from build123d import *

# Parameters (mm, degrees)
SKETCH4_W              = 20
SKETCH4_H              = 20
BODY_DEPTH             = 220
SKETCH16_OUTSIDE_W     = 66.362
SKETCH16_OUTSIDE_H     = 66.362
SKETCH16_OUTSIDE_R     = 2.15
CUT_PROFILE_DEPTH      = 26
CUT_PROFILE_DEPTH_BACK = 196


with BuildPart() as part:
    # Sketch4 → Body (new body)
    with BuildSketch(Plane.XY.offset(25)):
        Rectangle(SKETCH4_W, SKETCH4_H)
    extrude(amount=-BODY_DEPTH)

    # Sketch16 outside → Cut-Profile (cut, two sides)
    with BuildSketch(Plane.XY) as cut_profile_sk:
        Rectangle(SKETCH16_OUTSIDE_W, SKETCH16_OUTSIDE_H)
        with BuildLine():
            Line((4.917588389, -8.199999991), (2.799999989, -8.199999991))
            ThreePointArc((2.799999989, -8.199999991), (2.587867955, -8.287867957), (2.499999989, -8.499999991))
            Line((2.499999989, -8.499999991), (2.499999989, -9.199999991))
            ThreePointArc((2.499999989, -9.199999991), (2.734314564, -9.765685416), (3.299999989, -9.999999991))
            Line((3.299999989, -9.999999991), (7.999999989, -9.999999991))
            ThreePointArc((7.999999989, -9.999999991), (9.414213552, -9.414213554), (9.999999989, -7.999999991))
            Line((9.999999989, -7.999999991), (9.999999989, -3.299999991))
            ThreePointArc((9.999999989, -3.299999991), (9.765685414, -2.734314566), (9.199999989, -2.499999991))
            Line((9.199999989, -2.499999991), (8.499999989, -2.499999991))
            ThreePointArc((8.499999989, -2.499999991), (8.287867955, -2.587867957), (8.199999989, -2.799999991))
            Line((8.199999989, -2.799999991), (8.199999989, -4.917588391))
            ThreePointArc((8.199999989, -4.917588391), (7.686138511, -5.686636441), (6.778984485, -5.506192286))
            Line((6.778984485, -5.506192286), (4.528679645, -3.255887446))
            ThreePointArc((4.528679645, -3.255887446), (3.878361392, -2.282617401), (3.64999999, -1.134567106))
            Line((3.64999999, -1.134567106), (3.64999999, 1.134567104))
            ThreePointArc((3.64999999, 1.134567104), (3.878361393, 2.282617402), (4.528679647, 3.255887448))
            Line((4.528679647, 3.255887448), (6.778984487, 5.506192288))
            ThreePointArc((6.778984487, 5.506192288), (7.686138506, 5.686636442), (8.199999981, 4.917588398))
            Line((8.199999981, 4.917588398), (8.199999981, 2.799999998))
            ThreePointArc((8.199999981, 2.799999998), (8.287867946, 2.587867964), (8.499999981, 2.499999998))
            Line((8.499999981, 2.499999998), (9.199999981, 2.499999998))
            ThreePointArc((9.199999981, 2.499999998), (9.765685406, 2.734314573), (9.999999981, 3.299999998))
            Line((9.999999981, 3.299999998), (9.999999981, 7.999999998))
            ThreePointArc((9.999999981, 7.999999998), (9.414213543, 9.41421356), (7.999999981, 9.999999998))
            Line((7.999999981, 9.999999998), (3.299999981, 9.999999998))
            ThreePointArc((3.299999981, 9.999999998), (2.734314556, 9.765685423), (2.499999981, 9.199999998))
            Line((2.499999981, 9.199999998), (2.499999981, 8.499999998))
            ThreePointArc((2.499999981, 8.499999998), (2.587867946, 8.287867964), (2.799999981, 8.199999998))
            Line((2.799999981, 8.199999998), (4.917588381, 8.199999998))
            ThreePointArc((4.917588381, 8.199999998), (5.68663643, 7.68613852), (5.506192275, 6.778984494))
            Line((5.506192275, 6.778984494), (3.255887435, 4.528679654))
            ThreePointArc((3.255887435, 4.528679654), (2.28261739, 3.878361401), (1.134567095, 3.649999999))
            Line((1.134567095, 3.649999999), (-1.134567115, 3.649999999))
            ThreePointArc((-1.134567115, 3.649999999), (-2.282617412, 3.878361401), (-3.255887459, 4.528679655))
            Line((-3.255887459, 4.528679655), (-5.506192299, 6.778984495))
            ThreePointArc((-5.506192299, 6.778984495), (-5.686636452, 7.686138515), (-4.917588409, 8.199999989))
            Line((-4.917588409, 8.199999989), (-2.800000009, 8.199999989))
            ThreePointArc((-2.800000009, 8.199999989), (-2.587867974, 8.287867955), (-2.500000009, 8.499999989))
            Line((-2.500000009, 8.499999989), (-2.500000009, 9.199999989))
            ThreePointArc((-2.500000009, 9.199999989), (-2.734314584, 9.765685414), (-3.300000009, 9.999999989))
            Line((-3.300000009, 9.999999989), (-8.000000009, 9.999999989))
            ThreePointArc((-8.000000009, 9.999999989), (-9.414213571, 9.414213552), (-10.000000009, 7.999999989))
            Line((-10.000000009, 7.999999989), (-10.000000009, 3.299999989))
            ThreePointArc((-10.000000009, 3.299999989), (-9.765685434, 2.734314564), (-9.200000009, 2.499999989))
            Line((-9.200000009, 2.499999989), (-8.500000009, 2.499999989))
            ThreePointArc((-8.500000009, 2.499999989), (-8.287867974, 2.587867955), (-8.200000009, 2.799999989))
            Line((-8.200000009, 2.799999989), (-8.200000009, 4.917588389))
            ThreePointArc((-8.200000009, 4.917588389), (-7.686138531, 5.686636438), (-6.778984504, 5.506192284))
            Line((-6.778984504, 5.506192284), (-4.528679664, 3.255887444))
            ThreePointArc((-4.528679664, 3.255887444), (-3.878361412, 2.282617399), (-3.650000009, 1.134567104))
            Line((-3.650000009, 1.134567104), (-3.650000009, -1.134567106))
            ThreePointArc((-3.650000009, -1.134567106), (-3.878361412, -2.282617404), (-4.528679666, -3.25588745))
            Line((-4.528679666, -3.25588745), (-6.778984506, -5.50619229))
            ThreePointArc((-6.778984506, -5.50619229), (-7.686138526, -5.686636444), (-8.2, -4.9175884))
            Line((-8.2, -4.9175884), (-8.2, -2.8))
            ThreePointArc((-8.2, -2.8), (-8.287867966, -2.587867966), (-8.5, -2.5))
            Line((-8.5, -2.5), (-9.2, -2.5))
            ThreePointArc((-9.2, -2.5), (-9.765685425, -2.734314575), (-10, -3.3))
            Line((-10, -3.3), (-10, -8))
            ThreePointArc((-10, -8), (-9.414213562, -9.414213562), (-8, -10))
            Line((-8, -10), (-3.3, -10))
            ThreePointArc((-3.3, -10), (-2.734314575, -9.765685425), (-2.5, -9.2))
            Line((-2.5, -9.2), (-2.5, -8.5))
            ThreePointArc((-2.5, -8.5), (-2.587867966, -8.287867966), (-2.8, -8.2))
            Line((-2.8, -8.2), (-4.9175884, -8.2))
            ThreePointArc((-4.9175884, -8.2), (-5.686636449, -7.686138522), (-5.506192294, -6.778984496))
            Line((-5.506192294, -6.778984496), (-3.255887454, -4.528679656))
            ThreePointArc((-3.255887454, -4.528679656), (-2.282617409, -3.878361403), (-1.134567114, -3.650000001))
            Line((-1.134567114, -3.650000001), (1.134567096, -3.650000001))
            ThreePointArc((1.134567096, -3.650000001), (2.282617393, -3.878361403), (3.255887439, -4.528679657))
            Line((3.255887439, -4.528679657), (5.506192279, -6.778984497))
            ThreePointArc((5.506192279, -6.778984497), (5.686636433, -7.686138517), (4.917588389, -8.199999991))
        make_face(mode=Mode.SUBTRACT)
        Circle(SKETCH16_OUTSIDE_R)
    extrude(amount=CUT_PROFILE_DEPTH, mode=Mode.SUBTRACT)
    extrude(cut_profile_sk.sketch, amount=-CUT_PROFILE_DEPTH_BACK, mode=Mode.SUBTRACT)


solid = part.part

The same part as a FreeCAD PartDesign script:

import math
import FreeCAD as App
import Part
import Sketcher
from FreeCAD import Vector


def add_polygon(sketch, points):
    """Adds a closed chain of lines whose ends are joined by coincident constraints."""
    first, n = sketch.GeometryCount, len(points)
    for a, b in zip(points, points[1:] + points[:1]):
        sketch.addGeometry(Part.LineSegment(App.Vector(*a, 0), App.Vector(*b, 0)), False)
    for i in range(n):
        sketch.addConstraint(Sketcher.Constraint("Coincident", first + i, 2, first + (i + 1) % n, 1))

doc = App.newDocument("Part")
body = doc.addObject("PartDesign::Body", "Body")

# Sketch on XY plane
sketch1 = doc.addObject("Sketcher::SketchObject", "Sketch")
body.addObject(sketch1)
sketch1.AttachmentSupport = (doc.XY_Plane, [""])
sketch1.MapMode = "FlatFace"
sketch1.AttachmentOffset = App.Placement(Vector(0, 0, 25), App.Rotation())
add_polygon(sketch1, [(-10, 10), (-10, -10), (10, -10), (10, 10)])  # lines 0-3
sketch1.addConstraint([
    Sketcher.Constraint("Vertical", 0),
    Sketcher.Constraint("Horizontal", 1),
    Sketcher.Constraint("Vertical", 2),
    Sketcher.Constraint("Horizontal", 3),
    Sketcher.Constraint("Symmetric", 0, 2, 2, 2, -1, 1),
    Sketcher.Constraint("Equal", 3, 0),
    Sketcher.Constraint("DistanceX", 1, 1, 1, 2, 20.0),
])
pad1 = doc.addObject("PartDesign::Pad", "Pad")
body.addObject(pad1)
pad1.Profile = sketch1
pad1.Length = 220
pad1.Reversed = True

# Sketch on XY plane
sketch2 = doc.addObject("Sketcher::SketchObject", "Sketch001")
body.addObject(sketch2)
sketch2.AttachmentSupport = (doc.XY_Plane, [""])
sketch2.MapMode = "FlatFace"
add_polygon(sketch2, [(-33.18, 33.18), (-33.18, -33.18), (33.18, -33.18), (33.18, 33.18)])  # lines 0-3
sketch2.addGeometry(Part.LineSegment(Vector(2.8, -8.2, 0), Vector(4.92, -8.2, 0)), False)  # 4
sketch2.addGeometry(Part.ArcOfCircle(Part.Circle(Vector(4.92, -7.37, 0), Vector(0, 0, 1), 0.83), math.radians(-90), math.radians(45)), False)  # 5
sketch2.addGeometry(Part.LineSegment(Vector(5.51, -6.78, 0), Vector(3.26, -4.53, 0)), False)  # 6
sketch2.addGeometry(Part.ArcOfCircle(Part.Circle(Vector(1.13, -6.65, 0), Vector(0, 0, 1), 3), math.radians(45), math.radians(90)), False)  # 7
sketch2.addGeometry(Part.LineSegment(Vector(1.13, -3.65, 0), Vector(-1.13, -3.65, 0)), False)  # 8
sketch2.addGeometry(Part.ArcOfCircle(Part.Circle(Vector(-1.13, -6.65, 0), Vector(0, 0, 1), 3), math.radians(90), math.radians(135)), False)  # 9
sketch2.addGeometry(Part.LineSegment(Vector(-3.26, -4.53, 0), Vector(-5.51, -6.78, 0)), False)  # 10
sketch2.addGeometry(Part.ArcOfCircle(Part.Circle(Vector(-4.92, -7.37, 0), Vector(0, 0, 1), 0.83), math.radians(135), math.radians(270)), False)  # 11
sketch2.addGeometry(Part.LineSegment(Vector(-4.92, -8.2, 0), Vector(-2.8, -8.2, 0)), False)  # 12
sketch2.addGeometry(Part.ArcOfCircle(Part.Circle(Vector(-2.8, -8.5, 0), Vector(0, 0, 1), 0.3), math.radians(0), math.radians(90)), False)  # 13
sketch2.addGeometry(Part.LineSegment(Vector(-2.5, -8.5, 0), Vector(-2.5, -9.2, 0)), False)  # 14
sketch2.addGeometry(Part.ArcOfCircle(Part.Circle(Vector(-3.3, -9.2, 0), Vector(0, 0, 1), 0.8), math.radians(-90), math.radians(0)), False)  # 15
sketch2.addGeometry(Part.LineSegment(Vector(-3.3, -10, 0), Vector(-8, -10, 0)), False)  # 16
sketch2.addGeometry(Part.ArcOfCircle(Part.Circle(Vector(-8, -8, 0), Vector(0, 0, 1), 2), math.radians(-180), math.radians(-90)), False)  # 17
sketch2.addGeometry(Part.LineSegment(Vector(-10, -8, 0), Vector(-10, -3.3, 0)), False)  # 18
sketch2.addGeometry(Part.ArcOfCircle(Part.Circle(Vector(-9.2, -3.3, 0), Vector(0, 0, 1), 0.8), math.radians(90), math.radians(180)), False)  # 19
sketch2.addGeometry(Part.LineSegment(Vector(-9.2, -2.5, 0), Vector(-8.5, -2.5, 0)), False)  # 20
sketch2.addGeometry(Part.ArcOfCircle(Part.Circle(Vector(-8.5, -2.8, 0), Vector(0, 0, 1), 0.3), math.radians(0), math.radians(90)), False)  # 21
sketch2.addGeometry(Part.LineSegment(Vector(-8.2, -2.8, 0), Vector(-8.2, -4.92, 0)), False)  # 22
sketch2.addGeometry(Part.ArcOfCircle(Part.Circle(Vector(-7.37, -4.92, 0), Vector(0, 0, 1), 0.83), math.radians(180), math.radians(315)), False)  # 23
sketch2.addGeometry(Part.LineSegment(Vector(-6.78, -5.51, 0), Vector(-4.53, -3.26, 0)), False)  # 24
sketch2.addGeometry(Part.ArcOfCircle(Part.Circle(Vector(-6.65, -1.13, 0), Vector(0, 0, 1), 3), math.radians(-45), math.radians(0)), False)  # 25
sketch2.addGeometry(Part.LineSegment(Vector(-3.65, -1.13, 0), Vector(-3.65, 1.13, 0)), False)  # 26
sketch2.addGeometry(Part.ArcOfCircle(Part.Circle(Vector(-6.65, 1.13, 0), Vector(0, 0, 1), 3), math.radians(0), math.radians(45)), False)  # 27
sketch2.addGeometry(Part.LineSegment(Vector(-4.53, 3.26, 0), Vector(-6.78, 5.51, 0)), False)  # 28
sketch2.addGeometry(Part.ArcOfCircle(Part.Circle(Vector(-7.37, 4.92, 0), Vector(0, 0, 1), 0.83), math.radians(45), math.radians(180)), False)  # 29
sketch2.addGeometry(Part.LineSegment(Vector(-8.2, 4.92, 0), Vector(-8.2, 2.8, 0)), False)  # 30
sketch2.addGeometry(Part.ArcOfCircle(Part.Circle(Vector(-8.5, 2.8, 0), Vector(0, 0, 1), 0.3), math.radians(-90), math.radians(0)), False)  # 31
sketch2.addGeometry(Part.LineSegment(Vector(-8.5, 2.5, 0), Vector(-9.2, 2.5, 0)), False)  # 32
sketch2.addGeometry(Part.ArcOfCircle(Part.Circle(Vector(-9.2, 3.3, 0), Vector(0, 0, 1), 0.8), math.radians(180), math.radians(270)), False)  # 33
sketch2.addGeometry(Part.LineSegment(Vector(-10, 3.3, 0), Vector(-10, 8, 0)), False)  # 34
sketch2.addGeometry(Part.ArcOfCircle(Part.Circle(Vector(-8, 8, 0), Vector(0, 0, 1), 2), math.radians(90), math.radians(180)), False)  # 35
sketch2.addGeometry(Part.LineSegment(Vector(-8, 10, 0), Vector(-3.3, 10, 0)), False)  # 36
sketch2.addGeometry(Part.ArcOfCircle(Part.Circle(Vector(-3.3, 9.2, 0), Vector(0, 0, 1), 0.8), math.radians(0), math.radians(90)), False)  # 37
sketch2.addGeometry(Part.LineSegment(Vector(-2.5, 9.2, 0), Vector(-2.5, 8.5, 0)), False)  # 38
sketch2.addGeometry(Part.ArcOfCircle(Part.Circle(Vector(-2.8, 8.5, 0), Vector(0, 0, 1), 0.3), math.radians(-90), math.radians(0)), False)  # 39
sketch2.addGeometry(Part.LineSegment(Vector(-2.8, 8.2, 0), Vector(-4.92, 8.2, 0)), False)  # 40
sketch2.addGeometry(Part.ArcOfCircle(Part.Circle(Vector(-4.92, 7.37, 0), Vector(0, 0, 1), 0.83), math.radians(90), math.radians(225)), False)  # 41
sketch2.addGeometry(Part.LineSegment(Vector(-5.51, 6.78, 0), Vector(-3.26, 4.53, 0)), False)  # 42
sketch2.addGeometry(Part.ArcOfCircle(Part.Circle(Vector(-1.13, 6.65, 0), Vector(0, 0, 1), 3), math.radians(-135), math.radians(-90)), False)  # 43
sketch2.addGeometry(Part.LineSegment(Vector(-1.13, 3.65, 0), Vector(1.13, 3.65, 0)), False)  # 44
sketch2.addGeometry(Part.ArcOfCircle(Part.Circle(Vector(1.13, 6.65, 0), Vector(0, 0, 1), 3), math.radians(-90), math.radians(-45)), False)  # 45
sketch2.addGeometry(Part.LineSegment(Vector(3.26, 4.53, 0), Vector(5.51, 6.78, 0)), False)  # 46
sketch2.addGeometry(Part.ArcOfCircle(Part.Circle(Vector(4.92, 7.37, 0), Vector(0, 0, 1), 0.83), math.radians(-45), math.radians(90)), False)  # 47
sketch2.addGeometry(Part.LineSegment(Vector(4.92, 8.2, 0), Vector(2.8, 8.2, 0)), False)  # 48
sketch2.addGeometry(Part.ArcOfCircle(Part.Circle(Vector(2.8, 8.5, 0), Vector(0, 0, 1), 0.3), math.radians(180), math.radians(270)), False)  # 49
sketch2.addGeometry(Part.LineSegment(Vector(2.5, 8.5, 0), Vector(2.5, 9.2, 0)), False)  # 50
sketch2.addGeometry(Part.ArcOfCircle(Part.Circle(Vector(3.3, 9.2, 0), Vector(0, 0, 1), 0.8), math.radians(90), math.radians(180)), False)  # 51
sketch2.addGeometry(Part.LineSegment(Vector(3.3, 10, 0), Vector(8, 10, 0)), False)  # 52
sketch2.addGeometry(Part.ArcOfCircle(Part.Circle(Vector(8, 8, 0), Vector(0, 0, 1), 2), math.radians(0), math.radians(90)), False)  # 53
sketch2.addGeometry(Part.LineSegment(Vector(10, 8, 0), Vector(10, 3.3, 0)), False)  # 54
sketch2.addGeometry(Part.ArcOfCircle(Part.Circle(Vector(9.2, 3.3, 0), Vector(0, 0, 1), 0.8), math.radians(-90), math.radians(0)), False)  # 55
sketch2.addGeometry(Part.LineSegment(Vector(9.2, 2.5, 0), Vector(8.5, 2.5, 0)), False)  # 56
sketch2.addGeometry(Part.ArcOfCircle(Part.Circle(Vector(8.5, 2.8, 0), Vector(0, 0, 1), 0.3), math.radians(180), math.radians(270)), False)  # 57
sketch2.addGeometry(Part.LineSegment(Vector(8.2, 2.8, 0), Vector(8.2, 4.92, 0)), False)  # 58
sketch2.addGeometry(Part.ArcOfCircle(Part.Circle(Vector(7.37, 4.92, 0), Vector(0, 0, 1), 0.83), math.radians(0), math.radians(135)), False)  # 59
sketch2.addGeometry(Part.LineSegment(Vector(6.78, 5.51, 0), Vector(4.53, 3.26, 0)), False)  # 60
sketch2.addGeometry(Part.ArcOfCircle(Part.Circle(Vector(6.65, 1.13, 0), Vector(0, 0, 1), 3), math.radians(135), math.radians(180)), False)  # 61
sketch2.addGeometry(Part.LineSegment(Vector(3.65, 1.13, 0), Vector(3.65, -1.13, 0)), False)  # 62
sketch2.addGeometry(Part.ArcOfCircle(Part.Circle(Vector(6.65, -1.13, 0), Vector(0, 0, 1), 3), math.radians(180), math.radians(225)), False)  # 63
sketch2.addGeometry(Part.LineSegment(Vector(4.53, -3.26, 0), Vector(6.78, -5.51, 0)), False)  # 64
sketch2.addGeometry(Part.ArcOfCircle(Part.Circle(Vector(7.37, -4.92, 0), Vector(0, 0, 1), 0.83), math.radians(-135), math.radians(0)), False)  # 65
sketch2.addGeometry(Part.LineSegment(Vector(8.2, -4.92, 0), Vector(8.2, -2.8, 0)), False)  # 66
sketch2.addGeometry(Part.ArcOfCircle(Part.Circle(Vector(8.5, -2.8, 0), Vector(0, 0, 1), 0.3), math.radians(90), math.radians(180)), False)  # 67
sketch2.addGeometry(Part.LineSegment(Vector(8.5, -2.5, 0), Vector(9.2, -2.5, 0)), False)  # 68
sketch2.addGeometry(Part.ArcOfCircle(Part.Circle(Vector(9.2, -3.3, 0), Vector(0, 0, 1), 0.8), math.radians(0), math.radians(90)), False)  # 69
sketch2.addGeometry(Part.LineSegment(Vector(10, -3.3, 0), Vector(10, -8, 0)), False)  # 70
sketch2.addGeometry(Part.ArcOfCircle(Part.Circle(Vector(8, -8, 0), Vector(0, 0, 1), 2), math.radians(-90), math.radians(0)), False)  # 71
sketch2.addGeometry(Part.LineSegment(Vector(8, -10, 0), Vector(3.3, -10, 0)), False)  # 72
sketch2.addGeometry(Part.ArcOfCircle(Part.Circle(Vector(3.3, -9.2, 0), Vector(0, 0, 1), 0.8), math.radians(180), math.radians(270)), False)  # 73
sketch2.addGeometry(Part.LineSegment(Vector(2.5, -9.2, 0), Vector(2.5, -8.5, 0)), False)  # 74
sketch2.addGeometry(Part.ArcOfCircle(Part.Circle(Vector(2.8, -8.5, 0), Vector(0, 0, 1), 0.3), math.radians(90), math.radians(180)), False)  # 75
sketch2.addGeometry(Part.Circle(Vector(0, 0, 0), Vector(0, 0, 1), 2.15), False)  # 76
sketch2.addConstraint([
    Sketcher.Constraint("Tangent", 4, 2, 5, 1),
    Sketcher.Constraint("Tangent", 5, 2, 6, 1),
    Sketcher.Constraint("Tangent", 6, 2, 7, 1),
    Sketcher.Constraint("Tangent", 7, 2, 8, 1),
    Sketcher.Constraint("Tangent", 8, 2, 9, 1),
    Sketcher.Constraint("Tangent", 9, 2, 10, 1),
    Sketcher.Constraint("Tangent", 10, 2, 11, 1),
    Sketcher.Constraint("Tangent", 11, 2, 12, 1),
    Sketcher.Constraint("Tangent", 12, 2, 13, 2),
    Sketcher.Constraint("Tangent", 13, 1, 14, 1),
    Sketcher.Constraint("Tangent", 14, 2, 15, 2),
    Sketcher.Constraint("Tangent", 15, 1, 16, 1),
    Sketcher.Constraint("Tangent", 16, 2, 17, 2),
    Sketcher.Constraint("Tangent", 17, 1, 18, 1),
    Sketcher.Constraint("Tangent", 18, 2, 19, 2),
    Sketcher.Constraint("Tangent", 19, 1, 20, 1),
    Sketcher.Constraint("Tangent", 20, 2, 21, 2),
    Sketcher.Constraint("Tangent", 21, 1, 22, 1),
    Sketcher.Constraint("Tangent", 22, 2, 23, 1),
    Sketcher.Constraint("Tangent", 23, 2, 24, 1),
    Sketcher.Constraint("Tangent", 24, 2, 25, 1),
    Sketcher.Constraint("Tangent", 25, 2, 26, 1),
    Sketcher.Constraint("Tangent", 26, 2, 27, 1),
    Sketcher.Constraint("Tangent", 27, 2, 28, 1),
    Sketcher.Constraint("Tangent", 28, 2, 29, 1),
    Sketcher.Constraint("Tangent", 29, 2, 30, 1),
    Sketcher.Constraint("Tangent", 30, 2, 31, 2),
    Sketcher.Constraint("Tangent", 31, 1, 32, 1),
    Sketcher.Constraint("Tangent", 32, 2, 33, 2),
    Sketcher.Constraint("Tangent", 33, 1, 34, 1),
    Sketcher.Constraint("Tangent", 34, 2, 35, 2),
    Sketcher.Constraint("Tangent", 35, 1, 36, 1),
    Sketcher.Constraint("Tangent", 36, 2, 37, 2),
    Sketcher.Constraint("Tangent", 37, 1, 38, 1),
    Sketcher.Constraint("Tangent", 38, 2, 39, 2),
    Sketcher.Constraint("Tangent", 39, 1, 40, 1),
    Sketcher.Constraint("Tangent", 40, 2, 41, 1),
    Sketcher.Constraint("Tangent", 41, 2, 42, 1),
    Sketcher.Constraint("Tangent", 42, 2, 43, 1),
    Sketcher.Constraint("Tangent", 43, 2, 44, 1),
    Sketcher.Constraint("Tangent", 44, 2, 45, 1),
    Sketcher.Constraint("Tangent", 45, 2, 46, 1),
    Sketcher.Constraint("Tangent", 46, 2, 47, 1),
    Sketcher.Constraint("Tangent", 47, 2, 48, 1),
    Sketcher.Constraint("Tangent", 48, 2, 49, 2),
    Sketcher.Constraint("Tangent", 49, 1, 50, 1),
    Sketcher.Constraint("Tangent", 50, 2, 51, 2),
    Sketcher.Constraint("Tangent", 51, 1, 52, 1),
    Sketcher.Constraint("Tangent", 52, 2, 53, 2),
    Sketcher.Constraint("Tangent", 53, 1, 54, 1),
    Sketcher.Constraint("Tangent", 54, 2, 55, 2),
    Sketcher.Constraint("Tangent", 55, 1, 56, 1),
    Sketcher.Constraint("Tangent", 56, 2, 57, 2),
    Sketcher.Constraint("Tangent", 57, 1, 58, 1),
    Sketcher.Constraint("Tangent", 58, 2, 59, 1),
    Sketcher.Constraint("Tangent", 59, 2, 60, 1),
    Sketcher.Constraint("Tangent", 60, 2, 61, 1),
    Sketcher.Constraint("Tangent", 61, 2, 62, 1),
    Sketcher.Constraint("Tangent", 62, 2, 63, 1),
    Sketcher.Constraint("Tangent", 63, 2, 64, 1),
    Sketcher.Constraint("Tangent", 64, 2, 65, 1),
    Sketcher.Constraint("Tangent", 65, 2, 66, 1),
    Sketcher.Constraint("Tangent", 66, 2, 67, 2),
    Sketcher.Constraint("Tangent", 67, 1, 68, 1),
    Sketcher.Constraint("Tangent", 68, 2, 69, 2),
    Sketcher.Constraint("Tangent", 69, 1, 70, 1),
    Sketcher.Constraint("Tangent", 70, 2, 71, 2),
    Sketcher.Constraint("Tangent", 71, 1, 72, 1),
    Sketcher.Constraint("Tangent", 72, 2, 73, 2),
    Sketcher.Constraint("Tangent", 73, 1, 74, 1),
    Sketcher.Constraint("Tangent", 74, 2, 75, 2),
    Sketcher.Constraint("Tangent", 75, 1, 4, 1),
    Sketcher.Constraint("Vertical", 0),
    Sketcher.Constraint("Horizontal", 1),
    Sketcher.Constraint("Vertical", 2),
    Sketcher.Constraint("Horizontal", 3),
    Sketcher.Constraint("Horizontal", 4),
    Sketcher.Constraint("Horizontal", 8),
    Sketcher.Constraint("Horizontal", 12),
    Sketcher.Constraint("Vertical", 14),
    Sketcher.Constraint("Horizontal", 16),
    Sketcher.Constraint("Vertical", 18),
    Sketcher.Constraint("Horizontal", 20),
    Sketcher.Constraint("Vertical", 22),
    Sketcher.Constraint("Vertical", 26),
    Sketcher.Constraint("Vertical", 30),
    Sketcher.Constraint("Horizontal", 32),
    Sketcher.Constraint("Vertical", 34),
    Sketcher.Constraint("Horizontal", 36),
    Sketcher.Constraint("Vertical", 38),
    Sketcher.Constraint("Horizontal", 40),
    Sketcher.Constraint("Horizontal", 44),
    Sketcher.Constraint("Horizontal", 48),
    Sketcher.Constraint("Vertical", 50),
    Sketcher.Constraint("Horizontal", 52),
    Sketcher.Constraint("Vertical", 54),
    Sketcher.Constraint("Horizontal", 56),
    Sketcher.Constraint("Vertical", 58),
    Sketcher.Constraint("Vertical", 62),
    Sketcher.Constraint("Vertical", 66),
    Sketcher.Constraint("Horizontal", 68),
    Sketcher.Constraint("Vertical", 70),
    Sketcher.Constraint("Horizontal", 72),
    Sketcher.Constraint("Vertical", 74),
    Sketcher.Constraint("Coincident", 76, 3, -1, 1),
    Sketcher.Constraint("Equal", 7, 9),
    Sketcher.Constraint("Equal", 5, 11),
    Sketcher.Constraint("Equal", 15, 19),
    Sketcher.Constraint("Equal", 13, 21),
    Sketcher.Constraint("Equal", 11, 23),
    Sketcher.Constraint("Equal", 9, 25),
    Sketcher.Constraint("Equal", 25, 27),
    Sketcher.Constraint("Equal", 23, 29),
    Sketcher.Constraint("Equal", 21, 31),
    Sketcher.Constraint("Equal", 19, 33),
    Sketcher.Constraint("Equal", 17, 35),
    Sketcher.Constraint("Equal", 33, 37),
    Sketcher.Constraint("Equal", 31, 39),
    Sketcher.Constraint("Equal", 29, 41),
    Sketcher.Constraint("Equal", 27, 43),
    Sketcher.Constraint("Equal", 43, 45),
    Sketcher.Constraint("Equal", 41, 47),
    Sketcher.Constraint("Equal", 39, 49),
    Sketcher.Constraint("Equal", 37, 51),
    Sketcher.Constraint("Equal", 35, 53),
    Sketcher.Constraint("Equal", 51, 55),
    Sketcher.Constraint("Equal", 49, 57),
    Sketcher.Constraint("Equal", 47, 59),
    Sketcher.Constraint("Equal", 45, 61),
    Sketcher.Constraint("Equal", 61, 63),
    Sketcher.Constraint("Equal", 59, 65),
    Sketcher.Constraint("Equal", 57, 67),
    Sketcher.Constraint("Equal", 55, 69),
    Sketcher.Constraint("Equal", 53, 71),
    Sketcher.Constraint("Equal", 69, 73),
    Sketcher.Constraint("Equal", 67, 75),
    Sketcher.Constraint("Symmetric", 5, 3, 41, 3, -1, 1),
    Sketcher.Constraint("Symmetric", 7, 3, 43, 3, -1, 1),
    Sketcher.Constraint("Symmetric", 11, 3, 47, 3, -1, 1),
    Sketcher.Constraint("Symmetric", 15, 3, 51, 3, -1, 1),
    Sketcher.Constraint("Symmetric", 19, 3, 55, 3, -1, 1),
    Sketcher.Constraint("Symmetric", 23, 3, 59, 3, -1, 1),
    Sketcher.Constraint("Symmetric", 25, 3, 61, 3, -1, 1),
    Sketcher.Constraint("Symmetric", 29, 3, 65, 3, -1, 1),
    Sketcher.Constraint("Symmetric", 33, 3, 69, 3, -1, 1),
    Sketcher.Constraint("Symmetric", 37, 3, 73, 3, -1, 1),
    Sketcher.Constraint("Symmetric", 0, 2, 2, 2, -1, 1),
    Sketcher.Constraint("Symmetric", 5, 3, 11, 3, -2),
    Sketcher.Constraint("Symmetric", 37, 3, 51, 3, -2),
    Sketcher.Constraint("Symmetric", 33, 3, 55, 3, -2),
    Sketcher.Constraint("Symmetric", 29, 3, 59, 3, -2),
    Sketcher.Constraint("Perpendicular", 6, 10),
    Sketcher.Constraint("Parallel", 10, 24),
    Sketcher.Constraint("Perpendicular", 24, 28),
    Sketcher.Constraint("Perpendicular", 42, 46),
    Sketcher.Constraint("Perpendicular", 60, 64),
    Sketcher.Constraint("Horizontal", 27, 3, 61, 3),
    Sketcher.Constraint("Equal", 3, 0),
    Sketcher.Constraint("Equal", 68, 14),
    Sketcher.Constraint("Equal", 72, 18),
    Sketcher.Constraint("Equal", 48, 22),
    Sketcher.Constraint("Equal", 44, 26),
    Sketcher.Constraint("Equal", 10, 24),
    Sketcher.Constraint("Radius", 7, 3.0),
    Sketcher.Constraint("Radius", 17, 2.0),
    Sketcher.Constraint("Diameter", 76, 4.3),
    Sketcher.Constraint("Radius", 13, 0.3),
    Sketcher.Constraint("Radius", 15, 0.8),
    Sketcher.Constraint("DistanceX", 16, 2, 16, 1, 4.7),
    Sketcher.Constraint("DistanceX", 20, 1, 20, 2, 0.7),
    Sketcher.Constraint("DistanceX", 17, 3, -1, 1, 8.0),
    Sketcher.Constraint("DistanceX", 1, 1, 1, 2, 66.362),
    Sketcher.Constraint("DistanceY", 7, 3, -1, 1, 6.65),
    Sketcher.Constraint("Radius", 5, 0.832412),
    Sketcher.Constraint("DistanceX", 4, 1, 4, 2, 2.117588),
])
pocket1 = doc.addObject("PartDesign::Pocket", "Pocket")
body.addObject(pocket1)
pocket1.Profile = sketch2
pocket1.Type = "ThroughAll"
pocket1.Midplane = True

doc.recompute()
